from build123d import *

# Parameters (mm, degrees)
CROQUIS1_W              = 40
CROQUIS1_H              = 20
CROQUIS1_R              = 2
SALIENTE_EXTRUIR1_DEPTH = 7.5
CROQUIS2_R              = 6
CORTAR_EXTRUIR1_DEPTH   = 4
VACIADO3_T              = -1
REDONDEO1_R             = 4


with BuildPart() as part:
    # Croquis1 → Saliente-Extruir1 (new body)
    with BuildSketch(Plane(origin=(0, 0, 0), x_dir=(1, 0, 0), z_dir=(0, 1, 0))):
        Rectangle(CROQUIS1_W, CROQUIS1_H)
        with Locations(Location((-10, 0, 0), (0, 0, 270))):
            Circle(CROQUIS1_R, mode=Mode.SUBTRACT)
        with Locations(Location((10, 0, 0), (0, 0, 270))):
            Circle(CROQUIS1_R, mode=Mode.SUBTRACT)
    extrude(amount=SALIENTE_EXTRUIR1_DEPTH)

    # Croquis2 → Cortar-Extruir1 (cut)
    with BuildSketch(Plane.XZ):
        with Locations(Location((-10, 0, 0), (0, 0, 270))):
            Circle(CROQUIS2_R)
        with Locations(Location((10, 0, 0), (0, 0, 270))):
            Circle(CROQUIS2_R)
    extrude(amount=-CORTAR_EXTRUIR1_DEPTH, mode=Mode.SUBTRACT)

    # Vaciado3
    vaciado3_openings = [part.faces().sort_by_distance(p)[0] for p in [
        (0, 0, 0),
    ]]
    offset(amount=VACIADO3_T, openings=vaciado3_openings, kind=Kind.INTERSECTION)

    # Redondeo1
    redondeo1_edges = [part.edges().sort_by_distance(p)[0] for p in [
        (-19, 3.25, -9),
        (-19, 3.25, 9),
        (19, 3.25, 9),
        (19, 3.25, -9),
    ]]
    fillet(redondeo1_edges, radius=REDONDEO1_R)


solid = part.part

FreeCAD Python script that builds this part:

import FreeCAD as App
import Part
import Sketcher

V = App.Vector
Q = App.Units.Quantity


def edges_at(feature, points):
    """Names of the edges that pass closest to the given points."""
    edges = feature.Shape.Edges
    near = lambda p: min(range(len(edges)), key=lambda i: edges[i].distToShape(Part.Vertex(*p))[0])
    return sorted({f"Edge{near(p) + 1}" for p in points})


def faces_at(feature, points):
    """Names of the faces that lie closest to the given points."""
    faces = feature.Shape.Faces
    near = lambda p: min(range(len(faces)), key=lambda i: faces[i].distToShape(Part.Vertex(*p))[0])
    return sorted({f"Face{near(p) + 1}" for p in points})


def add_polygon(sketch, points):
    """Adds a closed chain of lines whose ends are joined by coincident constraints."""
    first, n = sketch.GeometryCount, len(points)
    for a, b in zip(points, points[1:] + points[:1]):
        sketch.addGeometry(Part.LineSegment(App.Vector(*a, 0), App.Vector(*b, 0)), False)
    for i in range(n):
        sketch.addConstraint(Sketcher.Constraint("Coincident", first + i, 2, first + (i + 1) % n, 1))

doc = App.newDocument("Part")
body = doc.addObject("PartDesign::Body", "Body")

sketch1 = body.newObject("Sketcher::SketchObject", "Sketch")
sketch1.AttachmentSupport = (doc.getObject("XZ_Plane"), [""])
sketch1.MapMode = "FlatFace"
add_polygon(sketch1, [(-20, -10), (-20, 10), (20, 10), (20, -10)])
sketch1.addGeometry(Part.Circle(V(-10, 0, 0), V(0, 0, 1), 2), False)
sketch1.addGeometry(Part.Circle(V(10, 0, 0), V(0, 0, 1), 2), False)
sketch1.addConstraint([
    Sketcher.Constraint("Vertical", 0),
    Sketcher.Constraint("Horizontal", 1),
    Sketcher.Constraint("Vertical", 2),
    Sketcher.Constraint("Horizontal", 3),
    Sketcher.Constraint("Equal", 4, 5),
    Sketcher.Constraint("Symmetric", 4, 3, 5, 3, -1, 1),
    Sketcher.Constraint("Symmetric", 0, 2, 2, 2, -1, 1),
    Sketcher.Constraint("PointOnObject", 4, 3, -1),
    Sketcher.Constraint("Diameter", 4, Q("4 mm")),
    Sketcher.Constraint("DistanceX", 1, 1, 1, 2, Q("40 mm")),
    Sketcher.Constraint("DistanceY", 0, 1, 0, 2, Q("20 mm")),
    Sketcher.Constraint("DistanceX", 4, 3, -1, 1, Q("10 mm")),
])
pad1 = body.newObject("PartDesign::Pad", "Pad")
pad1.Profile = sketch1
pad1.Length = 7.5
pad1.Reversed = True

sketch2 = body.newObject("Sketcher::SketchObject", "Sketch001")
sketch2.AttachmentSupport = (doc.getObject("XZ_Plane"), [""])
sketch2.MapMode = "FlatFace"
sketch2.addGeometry([
    Part.Circle(V(-10, 0, 0), V(0, 0, 1), 6),
    Part.Circle(V(10, 0, 0), V(0, 0, 1), 6),
], False)
sketch2.addConstraint([
    Sketcher.Constraint("Equal", 0, 1),
    Sketcher.Constraint("Symmetric", 0, 3, 1, 3, -1, 1),
    Sketcher.Constraint("PointOnObject", 0, 3, -1),
    Sketcher.Constraint("Diameter", 0, Q("12 mm")),
    Sketcher.Constraint("DistanceX", 0, 3, -1, 1, Q("10 mm")),
])
pocket1 = body.newObject("PartDesign::Pocket", "Pocket")
pocket1.Profile = sketch2
pocket1.Length = 4
doc.recompute()

thickness = body.newObject("PartDesign::Thickness", "Thickness")
thickness.Base = (pocket1, faces_at(pocket1, [(0, 0, 0)]))
thickness.Value = 1
thickness.Reversed = True
thickness.Join = "Intersection"
doc.recompute()

fillet = body.newObject("PartDesign::Fillet", "Fillet")
fillet.Base = (thickness, edges_at(thickness, [
    (-19, 3.25, -9),
    (-19, 3.25, 9),
    (19, 3.25, 9),
    (19, 3.25, -9),
]))
fillet.Radius = 4

doc.recompute()
